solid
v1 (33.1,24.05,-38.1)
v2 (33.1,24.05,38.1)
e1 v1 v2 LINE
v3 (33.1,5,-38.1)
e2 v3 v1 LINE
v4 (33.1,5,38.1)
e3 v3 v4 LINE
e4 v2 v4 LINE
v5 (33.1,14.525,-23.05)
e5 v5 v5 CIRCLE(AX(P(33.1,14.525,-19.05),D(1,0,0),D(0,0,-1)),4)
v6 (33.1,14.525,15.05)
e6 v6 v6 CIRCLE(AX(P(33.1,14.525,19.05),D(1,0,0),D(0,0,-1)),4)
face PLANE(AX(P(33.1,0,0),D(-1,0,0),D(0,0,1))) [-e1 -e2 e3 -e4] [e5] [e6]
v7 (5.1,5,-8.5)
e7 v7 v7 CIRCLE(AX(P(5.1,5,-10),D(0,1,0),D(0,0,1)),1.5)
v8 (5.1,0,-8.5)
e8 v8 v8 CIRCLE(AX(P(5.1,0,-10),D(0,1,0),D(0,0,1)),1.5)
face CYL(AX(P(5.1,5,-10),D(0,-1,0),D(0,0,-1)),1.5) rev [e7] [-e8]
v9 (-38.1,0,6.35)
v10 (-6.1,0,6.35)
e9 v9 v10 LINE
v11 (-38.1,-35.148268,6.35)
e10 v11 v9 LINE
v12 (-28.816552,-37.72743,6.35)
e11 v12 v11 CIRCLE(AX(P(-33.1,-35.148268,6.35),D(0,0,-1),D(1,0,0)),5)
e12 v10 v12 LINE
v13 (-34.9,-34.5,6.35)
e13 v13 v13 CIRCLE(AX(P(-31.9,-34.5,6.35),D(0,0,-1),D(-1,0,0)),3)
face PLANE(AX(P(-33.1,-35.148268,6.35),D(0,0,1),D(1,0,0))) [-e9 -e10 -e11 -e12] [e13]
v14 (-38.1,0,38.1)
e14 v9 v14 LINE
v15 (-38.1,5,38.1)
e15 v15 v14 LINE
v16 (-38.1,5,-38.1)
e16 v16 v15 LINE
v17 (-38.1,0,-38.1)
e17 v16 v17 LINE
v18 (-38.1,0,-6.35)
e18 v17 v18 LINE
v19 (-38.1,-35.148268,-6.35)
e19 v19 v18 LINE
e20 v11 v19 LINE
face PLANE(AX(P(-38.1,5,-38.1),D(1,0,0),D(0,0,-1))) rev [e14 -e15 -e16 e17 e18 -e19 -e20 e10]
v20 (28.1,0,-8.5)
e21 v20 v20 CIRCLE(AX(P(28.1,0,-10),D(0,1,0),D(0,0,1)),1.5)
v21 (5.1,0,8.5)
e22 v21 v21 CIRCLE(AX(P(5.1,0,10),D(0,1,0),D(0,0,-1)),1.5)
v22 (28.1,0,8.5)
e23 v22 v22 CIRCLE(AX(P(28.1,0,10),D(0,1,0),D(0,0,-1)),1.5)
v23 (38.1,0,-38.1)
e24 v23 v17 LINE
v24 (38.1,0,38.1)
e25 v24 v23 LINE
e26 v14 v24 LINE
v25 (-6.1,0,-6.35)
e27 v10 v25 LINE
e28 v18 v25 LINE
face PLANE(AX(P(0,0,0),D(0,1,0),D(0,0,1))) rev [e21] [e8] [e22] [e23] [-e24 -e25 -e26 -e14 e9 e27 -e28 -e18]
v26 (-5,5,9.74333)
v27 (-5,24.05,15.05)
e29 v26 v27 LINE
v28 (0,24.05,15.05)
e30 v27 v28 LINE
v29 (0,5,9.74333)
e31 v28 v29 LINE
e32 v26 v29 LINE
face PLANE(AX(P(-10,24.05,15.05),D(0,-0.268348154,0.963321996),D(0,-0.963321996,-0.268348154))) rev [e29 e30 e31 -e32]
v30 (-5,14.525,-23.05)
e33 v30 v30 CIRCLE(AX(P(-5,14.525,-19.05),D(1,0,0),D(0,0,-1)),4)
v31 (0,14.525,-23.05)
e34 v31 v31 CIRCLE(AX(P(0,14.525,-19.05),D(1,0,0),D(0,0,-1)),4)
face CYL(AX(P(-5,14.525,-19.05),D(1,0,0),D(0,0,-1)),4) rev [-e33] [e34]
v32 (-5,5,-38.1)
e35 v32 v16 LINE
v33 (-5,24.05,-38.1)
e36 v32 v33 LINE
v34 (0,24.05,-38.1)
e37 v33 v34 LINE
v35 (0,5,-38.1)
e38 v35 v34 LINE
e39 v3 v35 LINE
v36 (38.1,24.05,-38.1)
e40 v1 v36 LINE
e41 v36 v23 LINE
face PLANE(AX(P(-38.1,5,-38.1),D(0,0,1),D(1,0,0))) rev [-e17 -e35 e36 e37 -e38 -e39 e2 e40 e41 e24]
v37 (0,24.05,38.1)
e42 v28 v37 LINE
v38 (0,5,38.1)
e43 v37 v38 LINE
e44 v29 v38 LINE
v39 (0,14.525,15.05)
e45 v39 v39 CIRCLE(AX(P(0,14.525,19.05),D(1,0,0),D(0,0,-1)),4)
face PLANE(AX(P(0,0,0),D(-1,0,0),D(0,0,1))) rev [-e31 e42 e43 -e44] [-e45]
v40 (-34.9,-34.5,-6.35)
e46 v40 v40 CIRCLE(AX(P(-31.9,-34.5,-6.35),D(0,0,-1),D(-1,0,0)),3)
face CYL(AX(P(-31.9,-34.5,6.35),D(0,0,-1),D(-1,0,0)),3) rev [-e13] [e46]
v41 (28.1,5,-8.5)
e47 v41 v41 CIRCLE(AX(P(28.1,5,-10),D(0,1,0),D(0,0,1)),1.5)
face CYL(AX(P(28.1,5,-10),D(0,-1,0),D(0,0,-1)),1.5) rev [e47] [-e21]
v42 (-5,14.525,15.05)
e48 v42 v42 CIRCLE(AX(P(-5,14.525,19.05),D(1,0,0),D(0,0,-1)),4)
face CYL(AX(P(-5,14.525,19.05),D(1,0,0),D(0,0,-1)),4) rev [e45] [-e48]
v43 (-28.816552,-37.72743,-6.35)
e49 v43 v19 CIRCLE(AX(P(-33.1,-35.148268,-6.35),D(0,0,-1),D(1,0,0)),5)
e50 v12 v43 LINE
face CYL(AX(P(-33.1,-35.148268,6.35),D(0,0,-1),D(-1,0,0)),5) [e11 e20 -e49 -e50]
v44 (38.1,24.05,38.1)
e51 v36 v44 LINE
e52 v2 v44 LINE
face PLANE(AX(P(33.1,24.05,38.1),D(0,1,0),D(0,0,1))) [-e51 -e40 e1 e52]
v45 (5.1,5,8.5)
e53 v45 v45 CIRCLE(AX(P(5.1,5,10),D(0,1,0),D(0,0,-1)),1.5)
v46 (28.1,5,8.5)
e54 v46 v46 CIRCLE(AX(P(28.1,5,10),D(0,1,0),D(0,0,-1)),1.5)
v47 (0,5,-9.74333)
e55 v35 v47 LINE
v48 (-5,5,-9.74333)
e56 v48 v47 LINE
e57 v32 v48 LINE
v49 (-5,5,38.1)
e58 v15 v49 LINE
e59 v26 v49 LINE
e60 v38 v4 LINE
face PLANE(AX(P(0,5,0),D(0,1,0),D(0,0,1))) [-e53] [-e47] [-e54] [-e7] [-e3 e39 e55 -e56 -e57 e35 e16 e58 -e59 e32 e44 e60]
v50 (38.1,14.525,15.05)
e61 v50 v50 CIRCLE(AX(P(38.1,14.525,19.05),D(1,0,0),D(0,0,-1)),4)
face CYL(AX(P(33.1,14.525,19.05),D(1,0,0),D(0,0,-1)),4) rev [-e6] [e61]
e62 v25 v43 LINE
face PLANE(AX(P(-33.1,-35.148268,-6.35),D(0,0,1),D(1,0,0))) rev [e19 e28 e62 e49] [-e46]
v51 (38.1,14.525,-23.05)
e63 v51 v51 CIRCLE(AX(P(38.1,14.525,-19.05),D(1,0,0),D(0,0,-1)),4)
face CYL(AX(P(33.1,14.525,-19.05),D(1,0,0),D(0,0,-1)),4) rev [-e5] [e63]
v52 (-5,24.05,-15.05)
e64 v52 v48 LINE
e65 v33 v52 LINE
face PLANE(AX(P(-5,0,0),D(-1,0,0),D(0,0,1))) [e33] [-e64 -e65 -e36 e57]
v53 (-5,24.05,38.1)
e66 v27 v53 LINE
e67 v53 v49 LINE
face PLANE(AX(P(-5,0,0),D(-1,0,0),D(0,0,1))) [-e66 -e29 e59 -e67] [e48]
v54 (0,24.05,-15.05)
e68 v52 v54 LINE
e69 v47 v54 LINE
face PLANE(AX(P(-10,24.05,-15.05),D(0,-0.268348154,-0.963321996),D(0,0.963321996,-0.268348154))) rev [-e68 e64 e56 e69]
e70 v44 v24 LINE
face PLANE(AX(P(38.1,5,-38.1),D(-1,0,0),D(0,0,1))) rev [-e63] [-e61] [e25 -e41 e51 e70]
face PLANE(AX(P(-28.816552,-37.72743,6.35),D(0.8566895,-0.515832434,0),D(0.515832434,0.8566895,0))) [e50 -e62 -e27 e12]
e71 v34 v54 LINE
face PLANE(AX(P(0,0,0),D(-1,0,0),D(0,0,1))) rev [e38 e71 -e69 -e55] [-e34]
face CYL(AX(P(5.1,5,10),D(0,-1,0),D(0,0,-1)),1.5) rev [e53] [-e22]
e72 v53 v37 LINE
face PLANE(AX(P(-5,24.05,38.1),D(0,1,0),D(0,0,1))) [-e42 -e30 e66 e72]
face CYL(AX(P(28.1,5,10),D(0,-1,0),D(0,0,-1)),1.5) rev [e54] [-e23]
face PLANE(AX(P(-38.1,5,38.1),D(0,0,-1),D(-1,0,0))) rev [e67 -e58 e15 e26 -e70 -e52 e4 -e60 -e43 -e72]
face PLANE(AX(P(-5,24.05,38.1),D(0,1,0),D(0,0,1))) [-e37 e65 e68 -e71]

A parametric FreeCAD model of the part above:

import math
import FreeCAD as App
import Part
import Sketcher


def add_polygon(sketch, points):
    """Adds a closed chain of lines whose ends are joined by coincident constraints."""
    first, n = sketch.GeometryCount, len(points)
    for a, b in zip(points, points[1:] + points[:1]):
        sketch.addGeometry(Part.LineSegment(App.Vector(*a, 0), App.Vector(*b, 0)), False)
    for i in range(n):
        sketch.addConstraint(Sketcher.Constraint("Coincident", first + i, 2, first + (i + 1) % n, 1))

doc = App.newDocument("Part")
body = doc.addObject("PartDesign::Body", "Body")

sketch1 = body.newObject("Sketcher::SketchObject", "Sketch")
sketch1.AttachmentSupport = (doc.getObject("XZ_Plane"), [""])
sketch1.MapMode = "FlatFace"
add_polygon(sketch1, [(-38.1, -38.1), (-38.1, 38.1), (38.1, 38.1), (38.1, -38.1)])
sketch1.addGeometry(Part.Circle(App.Vector(5.1, 10, 0), App.Vector(0, 0, 1), 1.5), False)
sketch1.addGeometry(Part.Circle(App.Vector(28.1, 10, 0), App.Vector(0, 0, 1), 1.5), False)
sketch1.addGeometry(Part.Circle(App.Vector(5.1, -10, 0), App.Vector(0, 0, 1), 1.5), False)
sketch1.addGeometry(Part.Circle(App.Vector(28.1, -10, 0), App.Vector(0, 0, 1), 1.5), False)
sketch1.addConstraint([
    Sketcher.Constraint("Vertical", 0),
    Sketcher.Constraint("Horizontal", 1),
    Sketcher.Constraint("Vertical", 2),
    Sketcher.Constraint("Horizontal", 3),
    Sketcher.Constraint("Equal", 4, 5),
    Sketcher.Constraint("Equal", 5, 6),
    Sketcher.Constraint("Equal", 6, 7),
    Sketcher.Constraint("Symmetric", 0, 2, 2, 2, -1, 1),
    Sketcher.Constraint("Symmetric", 4, 3, 6, 3, -1),
    Sketcher.Constraint("Symmetric", 5, 3, 7, 3, -1),
    Sketcher.Constraint("Horizontal", 4, 3, 5, 3),
    Sketcher.Constraint("Equal", 3, 0),
    Sketcher.Constraint("Diameter", 4, 3.0),
    Sketcher.Constraint("DistanceX", 1, 1, 1, 2, 76.2),
    Sketcher.Constraint("DistanceY", -1, 1, 4, 3, 10.0),
    Sketcher.Constraint("DistanceX", 4, 3, 5, 3, 23.0),
    Sketcher.Constraint("DistanceX", 5, 3, 1, 2, 10.0),
])
pad1 = body.newObject("PartDesign::Pad", "Pad")
pad1.Profile = sketch1
pad1.Length = 5
pad1.Reversed = True

sketch2 = body.newObject("Sketcher::SketchObject", "Sketch001")
sketch2.AttachmentSupport = (doc.getObject("YZ_Plane"), [""])
sketch2.MapMode = "FlatFace"
sketch2.AttachmentOffset = App.Placement(App.Vector(0, 0, 38.1), App.Rotation())
add_polygon(sketch2, [(24.05, 38.1), (0, 38.1), (0, -38.1), (24.05, -38.1)])
sketch2.addGeometry(Part.Circle(App.Vector(14.525, 19.05, 0), App.Vector(0, 0, 1), 4), False)
sketch2.addGeometry(Part.Circle(App.Vector(14.525, -19.05, 0), App.Vector(0, 0, 1), 4), False)
sketch2.addConstraint([
    Sketcher.Constraint("Horizontal", 0),
    Sketcher.Constraint("Vertical", 1),
    Sketcher.Constraint("Horizontal", 2),
    Sketcher.Constraint("Vertical", 3),
    Sketcher.Constraint("Equal", 4, 5),
    Sketcher.Constraint("Symmetric", 0, 2, 1, 2, -1, 1),
    Sketcher.Constraint("Symmetric", 4, 3, 5, 3, -1),
    Sketcher.Constraint("Diameter", 4, 8.0),
    Sketcher.Constraint("DistanceY", 1, 2, 1, 1, 76.2),
    Sketcher.Constraint("DistanceX", 0, 2, 0, 1, 24.05),
    Sketcher.Constraint("DistanceY", 5, 3, 4, 3, 38.1),
    Sketcher.Constraint("DistanceX", -1, 1, 4, 3, 14.525),
])
pad2 = body.newObject("PartDesign::Pad", "Pad001")
pad2.Profile = sketch2
pad2.Length = 5
pad2.Reversed = True
doc.recompute()

linearpattern = body.newObject("PartDesign::LinearPattern", "LinearPattern")
linearpattern.Originals = [pad2]
linearpattern.Direction = (doc.getObject("X_Axis"), [""])
linearpattern.Mode = "offset"
linearpattern.Offset = 38.1
linearpattern.Occurrences = 2
linearpattern.Reversed = True
body.Tip = linearpattern

sketch3 = body.newObject("Sketcher::SketchObject", "Sketch002")
sketch3.AttachmentSupport = (doc.getObject("XY_Plane"), [""])
sketch3.MapMode = "FlatFace"
sketch3.addGeometry([
    Part.LineSegment(App.Vector(-38.1, 0, 0), App.Vector(-6.1, 0, 0)),
    Part.LineSegment(App.Vector(-6.1, 0, 0), App.Vector(-28.816552, -37.72743, 0)),
    Part.ArcOfCircle(Part.Circle(App.Vector(-33.1, -35.148268, 0), App.Vector(0, 0, 1), 5), math.radians(180), math.radians(328.946888)),
    Part.LineSegment(App.Vector(-38.1, -35.148268, 0), App.Vector(-38.1, 0, 0)),
    Part.Circle(App.Vector(-31.9, -34.5, 0), App.Vector(0, 0, 1), 3),
], False)
sketch3.addConstraint([
    Sketcher.Constraint("Coincident", 0, 2, 1, 1),
    Sketcher.Constraint("Tangent", 1, 2, 2, 2),
    Sketcher.Constraint("Tangent", 2, 1, 3, 1),
    Sketcher.Constraint("Coincident", 3, 2, 0, 1),
    Sketcher.Constraint("Horizontal", 0),
    Sketcher.Constraint("Vertical", 3),
    Sketcher.Constraint("PointOnObject", 0, 2, -1),
    Sketcher.Constraint("Diameter", 4, 6.0),
    Sketcher.Constraint("Radius", 2, 5.0),
    Sketcher.Constraint("DistanceX", 0, 1, 0, 2, 32.0),
    Sketcher.Constraint("DistanceX", 2, 3, -1, 1, 33.1),
    Sketcher.Constraint("DistanceX", 4, 3, -1, 1, 31.9),
    Sketcher.Constraint("DistanceY", 4, 3, -1, 1, 34.5),
    Sketcher.Constraint("DistanceY", 3, 1, 3, 2, 35.148268),
])
pad3 = body.newObject("PartDesign::Pad", "Pad002")
pad3.Profile = sketch3
pad3.Length = 12.7
pad3.Midplane = True

sketch4 = body.newObject("Sketcher::SketchObject", "Sketch003")
sketch4.AttachmentSupport = (doc.getObject("YZ_Plane"), [""])
sketch4.MapMode = "FlatFace"
add_polygon(sketch4, [(5, 9.74333), (5, -9.74333), (24.05, -15.05), (24.05, 15.05)])
sketch4.addConstraint([
    Sketcher.Constraint("Vertical", 0),
    Sketcher.Constraint("Vertical", 2),
    Sketcher.Constraint("Equal", 1, 3),
    Sketcher.Constraint("DistanceY", 2, 1, 2, 2, 30.1),
    Sketcher.Constraint("DistanceX", -1, 1, 0, 2, 5.0),
    Sketcher.Constraint("DistanceX", -1, 1, 1, 2, 24.05),
    Sketcher.Constraint("DistanceY", 1, 2, -1, 1, 15.05),
    Sketcher.Constraint("DistanceY", 0, 2, 0, 1, 19.486659),
])
pocket1 = body.newObject("PartDesign::Pocket", "Pocket")
pocket1.Profile = sketch4
pocket1.Length = 10

doc.recompute()
